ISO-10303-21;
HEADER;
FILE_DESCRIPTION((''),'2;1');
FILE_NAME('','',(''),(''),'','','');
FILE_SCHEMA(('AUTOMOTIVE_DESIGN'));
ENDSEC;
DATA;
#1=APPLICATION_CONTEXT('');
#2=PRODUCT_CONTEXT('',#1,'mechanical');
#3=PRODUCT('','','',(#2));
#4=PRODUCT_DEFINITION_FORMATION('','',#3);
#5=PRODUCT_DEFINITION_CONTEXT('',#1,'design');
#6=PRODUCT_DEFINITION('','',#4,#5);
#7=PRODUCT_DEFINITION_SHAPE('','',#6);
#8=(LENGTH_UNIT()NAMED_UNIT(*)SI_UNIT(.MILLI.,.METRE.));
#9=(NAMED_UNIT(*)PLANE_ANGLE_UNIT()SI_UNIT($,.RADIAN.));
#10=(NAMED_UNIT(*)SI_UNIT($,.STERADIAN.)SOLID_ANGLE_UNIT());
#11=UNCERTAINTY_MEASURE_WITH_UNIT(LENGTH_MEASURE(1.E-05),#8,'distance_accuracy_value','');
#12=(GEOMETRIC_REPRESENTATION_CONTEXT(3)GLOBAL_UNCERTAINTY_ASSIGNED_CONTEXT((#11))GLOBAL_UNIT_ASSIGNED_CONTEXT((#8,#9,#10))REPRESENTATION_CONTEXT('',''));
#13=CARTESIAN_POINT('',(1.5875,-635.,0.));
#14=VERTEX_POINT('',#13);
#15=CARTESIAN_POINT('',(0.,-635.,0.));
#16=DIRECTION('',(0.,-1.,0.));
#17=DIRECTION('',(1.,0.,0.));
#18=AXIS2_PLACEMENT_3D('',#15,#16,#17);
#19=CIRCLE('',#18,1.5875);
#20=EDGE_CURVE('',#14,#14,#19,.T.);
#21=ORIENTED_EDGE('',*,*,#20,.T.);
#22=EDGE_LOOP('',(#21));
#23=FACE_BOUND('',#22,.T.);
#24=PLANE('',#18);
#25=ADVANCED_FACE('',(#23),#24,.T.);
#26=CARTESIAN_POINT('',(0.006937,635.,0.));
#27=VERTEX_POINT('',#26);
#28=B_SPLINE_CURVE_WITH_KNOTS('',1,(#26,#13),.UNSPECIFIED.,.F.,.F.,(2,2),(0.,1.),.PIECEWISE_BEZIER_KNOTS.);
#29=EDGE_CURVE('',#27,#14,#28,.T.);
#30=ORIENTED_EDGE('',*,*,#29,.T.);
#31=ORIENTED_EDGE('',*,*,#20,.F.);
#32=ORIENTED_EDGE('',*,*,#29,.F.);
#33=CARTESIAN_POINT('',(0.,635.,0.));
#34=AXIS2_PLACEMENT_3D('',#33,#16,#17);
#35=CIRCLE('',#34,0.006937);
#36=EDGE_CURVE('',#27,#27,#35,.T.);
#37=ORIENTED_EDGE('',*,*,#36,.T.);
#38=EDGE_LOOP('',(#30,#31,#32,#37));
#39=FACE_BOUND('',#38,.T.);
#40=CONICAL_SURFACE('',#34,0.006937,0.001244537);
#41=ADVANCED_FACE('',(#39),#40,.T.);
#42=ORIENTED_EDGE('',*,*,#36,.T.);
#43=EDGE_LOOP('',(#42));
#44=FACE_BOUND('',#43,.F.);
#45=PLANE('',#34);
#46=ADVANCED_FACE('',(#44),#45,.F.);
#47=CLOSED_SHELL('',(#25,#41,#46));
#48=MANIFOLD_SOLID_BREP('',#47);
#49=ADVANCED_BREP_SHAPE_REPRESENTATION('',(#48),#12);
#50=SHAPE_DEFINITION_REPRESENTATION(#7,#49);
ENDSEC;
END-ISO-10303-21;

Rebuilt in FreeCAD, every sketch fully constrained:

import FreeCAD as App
import Part
import Sketcher
Q = App.Units.Quantity

doc = App.newDocument("Part")
body = doc.addObject("PartDesign::Body", "Body")

sketch1 = body.newObject("Sketcher::SketchObject", "Sketch")
sketch1.AttachmentSupport = (doc.getObject("XZ_Plane"), [""])
sketch1.MapMode = "FlatFace"
sketch1.AttachmentOffset = App.Placement(App.Vector(0, 0, -25 * 25.4), App.Rotation())
sketch1.addGeometry(Part.Circle(App.Vector(0, 0, 0), App.Vector(0, 0, 1), 0.006937), False)
sketch1.addConstraint([
    Sketcher.Constraint("Coincident", 0, 3, -1, 1),
    Sketcher.Constraint("Diameter", 0, 0.013874),
])

sketch2 = body.newObject("Sketcher::SketchObject", "Sketch001")
sketch2.AttachmentSupport = (doc.getObject("XZ_Plane"), [""])
sketch2.MapMode = "FlatFace"
sketch2.AttachmentOffset = App.Placement(App.Vector(0, 0, 25 * 25.4), App.Rotation())
sketch2.addGeometry(Part.Circle(App.Vector(0, 0, 0), App.Vector(0, 0, 1), 1.5875), False)
sketch2.addConstraint([
    Sketcher.Constraint("Coincident", 0, 3, -1, 1),
    Sketcher.Constraint("Diameter", 0, Q("0.125 in")),
])

additiveloft = body.newObject("PartDesign::AdditiveLoft", "AdditiveLoft")
additiveloft.Profile = sketch1
additiveloft.Sections = [sketch2]

doc.recompute()
